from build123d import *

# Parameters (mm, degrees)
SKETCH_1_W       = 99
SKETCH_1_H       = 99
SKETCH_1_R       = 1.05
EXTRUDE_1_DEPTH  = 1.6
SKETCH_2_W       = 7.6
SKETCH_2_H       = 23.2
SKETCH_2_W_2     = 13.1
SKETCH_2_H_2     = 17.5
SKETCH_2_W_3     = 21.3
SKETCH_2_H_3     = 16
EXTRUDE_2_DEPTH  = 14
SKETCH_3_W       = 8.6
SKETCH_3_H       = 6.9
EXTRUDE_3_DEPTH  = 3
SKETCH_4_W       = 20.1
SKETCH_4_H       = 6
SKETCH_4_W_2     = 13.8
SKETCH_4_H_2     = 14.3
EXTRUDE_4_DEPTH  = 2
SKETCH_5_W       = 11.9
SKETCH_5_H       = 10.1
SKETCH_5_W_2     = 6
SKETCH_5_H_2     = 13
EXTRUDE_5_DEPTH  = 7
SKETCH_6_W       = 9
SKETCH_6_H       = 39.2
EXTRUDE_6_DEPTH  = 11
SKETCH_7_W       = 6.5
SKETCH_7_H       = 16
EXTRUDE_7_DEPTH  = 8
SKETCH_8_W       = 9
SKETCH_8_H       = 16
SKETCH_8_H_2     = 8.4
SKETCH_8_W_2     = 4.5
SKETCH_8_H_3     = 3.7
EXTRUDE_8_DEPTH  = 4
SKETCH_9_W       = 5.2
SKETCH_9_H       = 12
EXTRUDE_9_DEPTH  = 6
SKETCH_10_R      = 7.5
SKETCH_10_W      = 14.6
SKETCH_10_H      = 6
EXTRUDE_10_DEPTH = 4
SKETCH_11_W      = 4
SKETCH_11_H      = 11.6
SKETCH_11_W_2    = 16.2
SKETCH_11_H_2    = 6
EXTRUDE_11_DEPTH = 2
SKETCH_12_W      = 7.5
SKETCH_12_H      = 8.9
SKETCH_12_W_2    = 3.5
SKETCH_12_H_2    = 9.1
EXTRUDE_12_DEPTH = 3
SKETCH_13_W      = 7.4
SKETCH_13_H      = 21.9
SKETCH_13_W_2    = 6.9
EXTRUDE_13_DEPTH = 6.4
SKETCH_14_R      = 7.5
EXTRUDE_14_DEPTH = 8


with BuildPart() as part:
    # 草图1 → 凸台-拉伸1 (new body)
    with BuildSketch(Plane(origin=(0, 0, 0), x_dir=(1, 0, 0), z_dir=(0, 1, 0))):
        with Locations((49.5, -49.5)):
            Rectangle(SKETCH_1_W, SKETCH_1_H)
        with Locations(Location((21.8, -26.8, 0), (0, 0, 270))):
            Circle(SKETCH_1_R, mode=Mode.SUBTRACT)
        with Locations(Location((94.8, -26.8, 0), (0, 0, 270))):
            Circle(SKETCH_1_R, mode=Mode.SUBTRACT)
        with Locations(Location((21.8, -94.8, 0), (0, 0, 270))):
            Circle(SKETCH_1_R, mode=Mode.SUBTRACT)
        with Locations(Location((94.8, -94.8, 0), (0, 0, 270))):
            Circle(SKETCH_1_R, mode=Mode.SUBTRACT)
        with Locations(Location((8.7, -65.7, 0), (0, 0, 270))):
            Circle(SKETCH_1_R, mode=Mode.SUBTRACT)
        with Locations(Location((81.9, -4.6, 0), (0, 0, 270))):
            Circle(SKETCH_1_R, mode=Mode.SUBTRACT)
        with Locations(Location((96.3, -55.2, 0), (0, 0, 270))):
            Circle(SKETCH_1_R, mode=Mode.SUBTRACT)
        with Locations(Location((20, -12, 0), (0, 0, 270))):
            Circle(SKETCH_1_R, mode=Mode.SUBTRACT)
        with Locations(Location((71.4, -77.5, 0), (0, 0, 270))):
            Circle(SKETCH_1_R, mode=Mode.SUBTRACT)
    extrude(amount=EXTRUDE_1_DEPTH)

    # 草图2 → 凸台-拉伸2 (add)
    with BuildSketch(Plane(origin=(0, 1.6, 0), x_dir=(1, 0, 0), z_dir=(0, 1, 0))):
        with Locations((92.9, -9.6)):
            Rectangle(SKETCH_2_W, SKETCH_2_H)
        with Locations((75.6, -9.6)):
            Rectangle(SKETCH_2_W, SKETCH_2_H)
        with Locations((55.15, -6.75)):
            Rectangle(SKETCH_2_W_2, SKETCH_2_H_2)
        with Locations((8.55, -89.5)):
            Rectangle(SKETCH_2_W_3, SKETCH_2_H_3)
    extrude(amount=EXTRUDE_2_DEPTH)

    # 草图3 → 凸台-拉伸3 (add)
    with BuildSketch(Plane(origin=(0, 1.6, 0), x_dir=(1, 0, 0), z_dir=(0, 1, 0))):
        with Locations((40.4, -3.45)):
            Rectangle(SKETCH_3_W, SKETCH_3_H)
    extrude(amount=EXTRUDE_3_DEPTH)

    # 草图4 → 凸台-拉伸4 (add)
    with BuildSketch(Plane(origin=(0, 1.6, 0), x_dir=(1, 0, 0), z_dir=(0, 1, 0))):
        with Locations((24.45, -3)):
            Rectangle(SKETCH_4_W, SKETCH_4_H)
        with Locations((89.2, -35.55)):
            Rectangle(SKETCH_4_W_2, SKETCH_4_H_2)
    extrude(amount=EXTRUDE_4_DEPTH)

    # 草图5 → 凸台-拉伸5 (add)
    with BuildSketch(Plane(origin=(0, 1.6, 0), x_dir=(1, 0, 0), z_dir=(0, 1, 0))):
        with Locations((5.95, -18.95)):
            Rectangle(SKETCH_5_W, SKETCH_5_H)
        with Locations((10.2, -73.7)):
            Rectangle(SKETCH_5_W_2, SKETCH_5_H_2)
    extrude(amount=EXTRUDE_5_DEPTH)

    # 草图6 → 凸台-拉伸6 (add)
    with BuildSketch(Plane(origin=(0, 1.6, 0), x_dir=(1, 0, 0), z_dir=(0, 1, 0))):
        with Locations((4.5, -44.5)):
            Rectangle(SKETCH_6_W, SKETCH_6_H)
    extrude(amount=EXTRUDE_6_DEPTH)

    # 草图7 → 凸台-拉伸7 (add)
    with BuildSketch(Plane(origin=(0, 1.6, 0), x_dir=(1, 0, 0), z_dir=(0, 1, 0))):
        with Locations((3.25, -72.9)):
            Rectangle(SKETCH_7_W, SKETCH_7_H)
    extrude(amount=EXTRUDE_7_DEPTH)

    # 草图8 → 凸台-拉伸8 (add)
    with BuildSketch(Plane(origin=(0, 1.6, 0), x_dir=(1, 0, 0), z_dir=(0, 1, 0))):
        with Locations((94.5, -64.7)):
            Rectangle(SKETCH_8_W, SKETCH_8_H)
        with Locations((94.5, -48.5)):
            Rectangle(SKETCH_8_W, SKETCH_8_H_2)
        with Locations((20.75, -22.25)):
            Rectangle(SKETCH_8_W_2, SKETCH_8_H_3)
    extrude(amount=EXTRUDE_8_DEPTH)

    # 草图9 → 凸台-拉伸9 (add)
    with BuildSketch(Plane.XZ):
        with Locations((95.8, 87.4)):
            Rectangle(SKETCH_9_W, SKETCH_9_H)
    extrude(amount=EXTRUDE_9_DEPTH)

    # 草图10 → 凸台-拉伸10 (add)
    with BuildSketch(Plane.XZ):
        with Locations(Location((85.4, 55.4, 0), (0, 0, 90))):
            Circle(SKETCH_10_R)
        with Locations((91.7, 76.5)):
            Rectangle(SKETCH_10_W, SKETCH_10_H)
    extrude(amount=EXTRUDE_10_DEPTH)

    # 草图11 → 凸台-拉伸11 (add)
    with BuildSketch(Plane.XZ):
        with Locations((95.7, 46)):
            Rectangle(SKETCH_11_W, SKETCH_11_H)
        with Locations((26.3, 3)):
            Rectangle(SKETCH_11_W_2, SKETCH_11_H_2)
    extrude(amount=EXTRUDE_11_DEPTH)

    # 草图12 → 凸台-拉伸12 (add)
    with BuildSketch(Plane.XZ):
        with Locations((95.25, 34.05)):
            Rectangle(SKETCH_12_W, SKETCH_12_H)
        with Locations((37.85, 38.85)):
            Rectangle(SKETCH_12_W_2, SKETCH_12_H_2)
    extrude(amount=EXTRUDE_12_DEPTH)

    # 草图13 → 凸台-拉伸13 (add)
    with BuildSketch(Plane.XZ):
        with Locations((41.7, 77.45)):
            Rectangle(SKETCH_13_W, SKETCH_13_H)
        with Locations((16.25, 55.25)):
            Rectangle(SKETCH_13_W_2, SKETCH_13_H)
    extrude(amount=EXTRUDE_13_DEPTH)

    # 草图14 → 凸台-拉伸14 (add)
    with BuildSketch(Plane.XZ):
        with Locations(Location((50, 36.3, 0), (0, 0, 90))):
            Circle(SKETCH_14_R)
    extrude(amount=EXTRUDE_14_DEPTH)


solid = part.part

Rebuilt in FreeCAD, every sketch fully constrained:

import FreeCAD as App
import Part
import Sketcher
from FreeCAD import Vector
Q = App.Units.Quantity

doc = App.newDocument("Part")
body = doc.addObject("PartDesign::Body", "Body")

# Sketch on XZ plane
sketch1 = body.newObject("Sketcher::SketchObject", "Sketch")
sketch1.AttachmentSupport = (doc.getObject("XZ_Plane"), [""])
sketch1.MapMode = "FlatFace"
sketch1.addGeometry([
    Part.LineSegment(Vector(0, 0, 0), Vector(0, 99, 0)),  # 0
    Part.LineSegment(Vector(0, 99, 0), Vector(99, 99, 0)),  # 1
    Part.LineSegment(Vector(99, 99, 0), Vector(99, 0, 0)),  # 2
    Part.LineSegment(Vector(99, 0, 0), Vector(0, 0, 0)),  # 3
    Part.Circle(Vector(21.8, 94.8, 0), Vector(0, 0, 1), 1.1),  # 4
    Part.Circle(Vector(8.7, 65.7, 0), Vector(0, 0, 1), 1.1),  # 5
    Part.Circle(Vector(71.4, 77.5, 0), Vector(0, 0, 1), 1.1),  # 6
    Part.Circle(Vector(94.8, 94.8, 0), Vector(0, 0, 1), 1.1),  # 7
    Part.Circle(Vector(96.3, 55.2, 0), Vector(0, 0, 1), 1.1),  # 8
    Part.Circle(Vector(21.8, 26.8, 0), Vector(0, 0, 1), 1.1),  # 9
    Part.Circle(Vector(20, 12, 0), Vector(0, 0, 1), 1.1),  # 10
    Part.Circle(Vector(94.8, 26.8, 0), Vector(0, 0, 1), 1.1),  # 11
    Part.Circle(Vector(81.9, 4.6, 0), Vector(0, 0, 1), 1.1),  # 12
], False)
sketch1.addConstraint([
    Sketcher.Constraint("Coincident", 0, 2, 1, 1),
    Sketcher.Constraint("Coincident", 1, 2, 2, 1),
    Sketcher.Constraint("Coincident", 2, 2, 3, 1),
    Sketcher.Constraint("Coincident", 3, 2, 0, 1),
    Sketcher.Constraint("Vertical", 0),
    Sketcher.Constraint("Horizontal", 1),
    Sketcher.Constraint("Vertical", 2),
    Sketcher.Constraint("Horizontal", 3),
    Sketcher.Constraint("Coincident", 3, 2, -1, 1),
    Sketcher.Constraint("Equal", 4, 5),
    Sketcher.Constraint("Equal", 5, 6),
    Sketcher.Constraint("Equal", 6, 7),
    Sketcher.Constraint("Equal", 7, 8),
    Sketcher.Constraint("Equal", 8, 9),
    Sketcher.Constraint("Equal", 9, 10),
    Sketcher.Constraint("Equal", 10, 11),
    Sketcher.Constraint("Equal", 11, 12),
    Sketcher.Constraint("Horizontal", 4, 3, 7, 3),
    Sketcher.Constraint("Horizontal", 9, 3, 11, 3),
    Sketcher.Constraint("Vertical", 4, 3, 9, 3),
    Sketcher.Constraint("Vertical", 7, 3, 11, 3),
    Sketcher.Constraint("Equal", 3, 0),
    Sketcher.Constraint("Diameter", 4, Q("2.1 mm")),
    Sketcher.Constraint("DistanceX", 1, 1, 1, 2, Q("99 mm")),
    Sketcher.Constraint("DistanceX", -1, 1, 10, 3, Q("20 mm")),
    Sketcher.Constraint("DistanceY", -1, 1, 10, 3, Q("12 mm")),
    Sketcher.Constraint("DistanceX", 4, 3, 7, 3, Q("73 mm")),
    Sketcher.Constraint("DistanceY", 9, 3, 4, 3, Q("68 mm")),
    Sketcher.Constraint("DistanceX", -1, 1, 4, 3, Q("21.8 mm")),
    Sketcher.Constraint("DistanceY", -1, 1, 4, 3, Q("94.8 mm")),
    Sketcher.Constraint("DistanceX", -1, 1, 5, 3, Q("8.7 mm")),
    Sketcher.Constraint("DistanceY", -1, 1, 5, 3, Q("65.7 mm")),
    Sketcher.Constraint("DistanceX", -1, 1, 6, 3, Q("71.4 mm")),
    Sketcher.Constraint("DistanceY", -1, 1, 6, 3, Q("77.5 mm")),
    Sketcher.Constraint("DistanceX", -1, 1, 8, 3, Q("96.3 mm")),
    Sketcher.Constraint("DistanceY", -1, 1, 8, 3, Q("55.2 mm")),
    Sketcher.Constraint("DistanceX", -1, 1, 12, 3, Q("81.9 mm")),
    Sketcher.Constraint("DistanceY", -1, 1, 12, 3, Q("4.6 mm")),
])
pad1 = body.newObject("PartDesign::Pad", "Pad")
pad1.Profile = sketch1
pad1.Length = 1.6
pad1.Reversed = True

# Sketch on XZ plane
sketch2 = body.newObject("Sketcher::SketchObject", "Sketch001")
sketch2.AttachmentSupport = (doc.getObject("XZ_Plane"), [""])
sketch2.MapMode = "FlatFace"
sketch2.AttachmentOffset = App.Placement(Vector(0, 0, -1.6), App.Rotation())
sketch2.addGeometry([
    Part.LineSegment(Vector(89, -2, 0), Vector(89, 21, 0)),  # 0
    Part.LineSegment(Vector(89, 21, 0), Vector(97, 21, 0)),  # 1
    Part.LineSegment(Vector(97, 21, 0), Vector(97, -2, 0)),  # 2
    Part.LineSegment(Vector(97, -2, 0), Vector(89, -2, 0)),  # 3
    Part.LineSegment(Vector(72, -2, 0), Vector(72, 21, 0)),  # 4
    Part.LineSegment(Vector(72, 21, 0), Vector(79, 21, 0)),  # 5
    Part.LineSegment(Vector(79, 21, 0), Vector(79, -2, 0)),  # 6
    Part.LineSegment(Vector(79, -2, 0), Vector(72, -2, 0)),  # 7
    Part.LineSegment(Vector(49, -2, 0), Vector(49, 16, 0)),  # 8
    Part.LineSegment(Vector(49, 16, 0), Vector(62, 16, 0)),  # 9
    Part.LineSegment(Vector(62, 16, 0), Vector(62, -2, 0)),  # 10
    Part.LineSegment(Vector(62, -2, 0), Vector(49, -2, 0)),  # 11
    Part.LineSegment(Vector(-2, 82, 0), Vector(-2, 98, 0)),  # 12
    Part.LineSegment(Vector(-2, 98, 0), Vector(19, 98, 0)),  # 13
    Part.LineSegment(Vector(19, 98, 0), Vector(19, 82, 0)),  # 14
    Part.LineSegment(Vector(19, 82, 0), Vector(-2, 82, 0)),  # 15
], False)
sketch2.addConstraint([
    Sketcher.Constraint("Coincident", 0, 2, 1, 1),
    Sketcher.Constraint("Coincident", 1, 2, 2, 1),
    Sketcher.Constraint("Coincident", 2, 2, 3, 1),
    Sketcher.Constraint("Coincident", 3, 2, 0, 1),
    Sketcher.Constraint("Coincident", 4, 2, 5, 1),
    Sketcher.Constraint("Coincident", 5, 2, 6, 1),
    Sketcher.Constraint("Coincident", 6, 2, 7, 1),
    Sketcher.Constraint("Coincident", 7, 2, 4, 1),
    Sketcher.Constraint("Coincident", 8, 2, 9, 1),
    Sketcher.Constraint("Coincident", 9, 2, 10, 1),
    Sketcher.Constraint("Coincident", 10, 2, 11, 1),
    Sketcher.Constraint("Coincident", 11, 2, 8, 1),
    Sketcher.Constraint("Coincident", 12, 2, 13, 1),
    Sketcher.Constraint("Coincident", 13, 2, 14, 1),
    Sketcher.Constraint("Coincident", 14, 2, 15, 1),
    Sketcher.Constraint("Coincident", 15, 2, 12, 1),
    Sketcher.Constraint("Vertical", 0),
    Sketcher.Constraint("Horizontal", 1),
    Sketcher.Constraint("Vertical", 2),
    Sketcher.Constraint("Horizontal", 3),
    Sketcher.Constraint("Vertical", 4),
    Sketcher.Constraint("Horizontal", 5),
    Sketcher.Constraint("Vertical", 6),
    Sketcher.Constraint("Horizontal", 7),
    Sketcher.Constraint("Vertical", 8),
    Sketcher.Constraint("Horizontal", 9),
    Sketcher.Constraint("Vertical", 10),
    Sketcher.Constraint("Horizontal", 11),
    Sketcher.Constraint("Vertical", 12),
    Sketcher.Constraint("Horizontal", 13),
    Sketcher.Constraint("Vertical", 14),
    Sketcher.Constraint("Horizontal", 15),
    Sketcher.Constraint("Horizontal", 1, 2, 4, 2),
    Sketcher.Constraint("Horizontal", 3, 2, 6, 2),
    Sketcher.Constraint("Horizontal", 7, 2, 10, 2),
    Sketcher.Constraint("Equal", 3, 5),
    Sketcher.Constraint("DistanceY", 12, 1, 12, 2, Q("16 mm")),
    Sketcher.Constraint("DistanceX", 1, 1, 1, 2, Q("7.6 mm")),
    Sketcher.Constraint("DistanceX", 9, 1, 9, 2, Q("13.1 mm")),
    Sketcher.Constraint("DistanceX", 13, 1, 13, 2, Q("21.3 mm")),
    Sketcher.Constraint("DistanceY", 0, 1, 0, 2, Q("23.2 mm")),
    Sketcher.Constraint("DistanceY", 8, 1, 8, 2, Q("17.5 mm")),
    Sketcher.Constraint("DistanceY", 2, 2, -1, 1, Q("2 mm")),
    Sketcher.Constraint("DistanceY", 8, 2, 12, 2, Q("82 mm")),
    Sketcher.Constraint("DistanceX", -1, 1, 0, 2, Q("89.1 mm")),
    Sketcher.Constraint("DistanceX", -1, 1, 4, 2, Q("71.8 mm")),
    Sketcher.Constraint("DistanceX", -1, 1, 8, 2, Q("48.6 mm")),
    Sketcher.Constraint("DistanceX", 12, 2, -1, 1, Q("2.1 mm")),
])
pad2 = body.newObject("PartDesign::Pad", "Pad001")
pad2.Profile = sketch2
pad2.Length = 14
pad2.Reversed = True

# Sketch on XZ plane
sketch3 = body.newObject("Sketcher::SketchObject", "Sketch002")
sketch3.AttachmentSupport = (doc.getObject("XZ_Plane"), [""])
sketch3.MapMode = "FlatFace"
sketch3.AttachmentOffset = App.Placement(Vector(0, 0, -1.6), App.Rotation())
sketch3.addGeometry([
    Part.LineSegment(Vector(36, 0, 0), Vector(36, 7, 0)),
    Part.LineSegment(Vector(36, 7, 0), Vector(45, 7, 0)),
    Part.LineSegment(Vector(45, 7, 0), Vector(45, 0, 0)),
    Part.LineSegment(Vector(45, 0, 0), Vector(36, 0, 0)),
], False)
sketch3.addConstraint([
    Sketcher.Constraint("Coincident", 0, 2, 1, 1),
    Sketcher.Constraint("Coincident", 1, 2, 2, 1),
    Sketcher.Constraint("Coincident", 2, 2, 3, 1),
    Sketcher.Constraint("Coincident", 3, 2, 0, 1),
    Sketcher.Constraint("Vertical", 0),
    Sketcher.Constraint("Horizontal", 1),
    Sketcher.Constraint("Vertical", 2),
    Sketcher.Constraint("Horizontal", 3),
    Sketcher.Constraint("PointOnObject", 2, 2, -1),
    Sketcher.Constraint("DistanceX", 1, 1, 1, 2, Q("8.6 mm")),
    Sketcher.Constraint("DistanceY", 0, 1, 0, 2, Q("6.9 mm")),
    Sketcher.Constraint("DistanceX", -1, 1, 0, 2, Q("36.1 mm")),
])
pad3 = body.newObject("PartDesign::Pad", "Pad002")
pad3.Profile = sketch3
pad3.Length = 3
pad3.Reversed = True

# Sketch on XZ plane
sketch4 = body.newObject("Sketcher::SketchObject", "Sketch003")
sketch4.AttachmentSupport = (doc.getObject("XZ_Plane"), [""])
sketch4.MapMode = "FlatFace"
sketch4.AttachmentOffset = App.Placement(Vector(0, 0, -1.6), App.Rotation())
sketch4.addGeometry([
    Part.LineSegment(Vector(14, 0, 0), Vector(14, 6, 0)),  # 0
    Part.LineSegment(Vector(14, 6, 0), Vector(34, 6, 0)),  # 1
    Part.LineSegment(Vector(34, 6, 0), Vector(34, 0, 0)),  # 2
    Part.LineSegment(Vector(34, 0, 0), Vector(14, 0, 0)),  # 3
    Part.LineSegment(Vector(82, 28, 0), Vector(82, 43, 0)),  # 4
    Part.LineSegment(Vector(82, 43, 0), Vector(96, 43, 0)),  # 5
    Part.LineSegment(Vector(96, 43, 0), Vector(96, 28, 0)),  # 6
    Part.LineSegment(Vector(96, 28, 0), Vector(82, 28, 0)),  # 7
], False)
sketch4.addConstraint([
    Sketcher.Constraint("Coincident", 0, 2, 1, 1),
    Sketcher.Constraint("Coincident", 1, 2, 2, 1),
    Sketcher.Constraint("Coincident", 2, 2, 3, 1),
    Sketcher.Constraint("Coincident", 3, 2, 0, 1),
    Sketcher.Constraint("Coincident", 4, 2, 5, 1),
    Sketcher.Constraint("Coincident", 5, 2, 6, 1),
    Sketcher.Constraint("Coincident", 6, 2, 7, 1),
    Sketcher.Constraint("Coincident", 7, 2, 4, 1),
    Sketcher.Constraint("Vertical", 0),
    Sketcher.Constraint("Horizontal", 1),
    Sketcher.Constraint("Vertical", 2),
    Sketcher.Constraint("Horizontal", 3),
    Sketcher.Constraint("Vertical", 4),
    Sketcher.Constraint("Horizontal", 5),
    Sketcher.Constraint("Vertical", 6),
    Sketcher.Constraint("Horizontal", 7),
    Sketcher.Constraint("PointOnObject", 2, 2, -1),
    Sketcher.Constraint("DistanceY", 0, 1, 0, 2, Q("6 mm")),
    Sketcher.Constraint("DistanceX", 1, 1, 1, 2, Q("20.1 mm")),
    Sketcher.Constraint("DistanceX", 5, 1, 5, 2, Q("13.8 mm")),
    Sketcher.Constraint("DistanceY", 4, 1, 4, 2, Q("14.3 mm")),
    Sketcher.Constraint("DistanceX", -1, 1, 0, 2, Q("14.4 mm")),
    Sketcher.Constraint("DistanceX", -1, 1, 4, 2, Q("82.3 mm")),
    Sketcher.Constraint("DistanceY", -1, 1, 4, 2, Q("42.7 mm")),
])
pad4 = body.newObject("PartDesign::Pad", "Pad003")
pad4.Profile = sketch4
pad4.Length = 2
pad4.Reversed = True

# Sketch on XZ plane
sketch5 = body.newObject("Sketcher::SketchObject", "Sketch004")
sketch5.AttachmentSupport = (doc.getObject("XZ_Plane"), [""])
sketch5.MapMode = "FlatFace"
sketch5.AttachmentOffset = App.Placement(Vector(0, 0, -1.6), App.Rotation())
sketch5.addGeometry([
    Part.LineSegment(Vector(0, 14, 0), Vector(0, 24, 0)),  # 0
    Part.LineSegment(Vector(0, 24, 0), Vector(12, 24, 0)),  # 1
    Part.LineSegment(Vector(12, 24, 0), Vector(12, 14, 0)),  # 2
    Part.LineSegment(Vector(12, 14, 0), Vector(0, 14, 0)),  # 3
    Part.LineSegment(Vector(7, 67, 0), Vector(7, 80, 0)),  # 4
    Part.LineSegment(Vector(7, 80, 0), Vector(13, 80, 0)),  # 5
    Part.LineSegment(Vector(13, 80, 0), Vector(13, 67, 0)),  # 6
    Part.LineSegment(Vector(13, 67, 0), Vector(7, 67, 0)),  # 7
], False)
sketch5.addConstraint([
    Sketcher.Constraint("Coincident", 0, 2, 1, 1),
    Sketcher.Constraint("Coincident", 1, 2, 2, 1),
    Sketcher.Constraint("Coincident", 2, 2, 3, 1),
    Sketcher.Constraint("Coincident", 3, 2, 0, 1),
    Sketcher.Constraint("Coincident", 4, 2, 5, 1),
    Sketcher.Constraint("Coincident", 5, 2, 6, 1),
    Sketcher.Constraint("Coincident", 6, 2, 7, 1),
    Sketcher.Constraint("Coincident", 7, 2, 4, 1),
    Sketcher.Constraint("Vertical", 0),
    Sketcher.Constraint("Horizontal", 1),
    Sketcher.Constraint("Vertical", 2),
    Sketcher.Constraint("Horizontal", 3),
    Sketcher.Constraint("Vertical", 4),
    Sketcher.Constraint("Horizontal", 5),
    Sketcher.Constraint("Vertical", 6),
    Sketcher.Constraint("Horizontal", 7),
    Sketcher.Constraint("PointOnObject", 0, 2, -2),
    Sketcher.Constraint("DistanceX", 5, 1, 5, 2, Q("6 mm")),
    Sketcher.Constraint("DistanceY", 4, 1, 4, 2, Q("13 mm")),
    Sketcher.Constraint("DistanceX", 1, 1, 1, 2, Q("11.9 mm")),
    Sketcher.Constraint("DistanceY", 0, 1, 0, 2, Q("10.1 mm")),
    Sketcher.Constraint("DistanceY", -1, 1, 0, 2, Q("24 mm")),
    Sketcher.Constraint("DistanceX", -1, 1, 4, 2, Q("7.2 mm")),
    Sketcher.Constraint("DistanceY", -1, 1, 4, 2, Q("80.2 mm")),
])
pad5 = body.newObject("PartDesign::Pad", "Pad004")
pad5.Profile = sketch5
pad5.Length = 7
pad5.Reversed = True

# Sketch on XZ plane
sketch6 = body.newObject("Sketcher::SketchObject", "Sketch005")
sketch6.AttachmentSupport = (doc.getObject("XZ_Plane"), [""])
sketch6.MapMode = "FlatFace"
sketch6.AttachmentOffset = App.Placement(Vector(0, 0, -1.6), App.Rotation())
sketch6.addGeometry([
    Part.LineSegment(Vector(0, 25, 0), Vector(0, 64, 0)),
    Part.LineSegment(Vector(0, 64, 0), Vector(9, 64, 0)),
    Part.LineSegment(Vector(9, 64, 0), Vector(9, 25, 0)),
    Part.LineSegment(Vector(9, 25, 0), Vector(0, 25, 0)),
], False)
sketch6.addConstraint([
    Sketcher.Constraint("Coincident", 0, 2, 1, 1),
    Sketcher.Constraint("Coincident", 1, 2, 2, 1),
    Sketcher.Constraint("Coincident", 2, 2, 3, 1),
    Sketcher.Constraint("Coincident", 3, 2, 0, 1),
    Sketcher.Constraint("Vertical", 0),
    Sketcher.Constraint("Horizontal", 1),
    Sketcher.Constraint("Vertical", 2),
    Sketcher.Constraint("Horizontal", 3),
    Sketcher.Constraint("PointOnObject", 0, 2, -2),
    Sketcher.Constraint("DistanceX", 1, 1, 1, 2, Q("9 mm")),
    Sketcher.Constraint("DistanceY", 0, 1, 0, 2, Q("39.2 mm")),
    Sketcher.Constraint("DistanceY", -1, 1, 0, 2, Q("64.1 mm")),
])
pad6 = body.newObject("PartDesign::Pad", "Pad005")
pad6.Profile = sketch6
pad6.Length = 11
pad6.Reversed = True

# Sketch on XZ plane
sketch7 = body.newObject("Sketcher::SketchObject", "Sketch006")
sketch7.AttachmentSupport = (doc.getObject("XZ_Plane"), [""])
sketch7.MapMode = "FlatFace"
sketch7.AttachmentOffset = App.Placement(Vector(0, 0, -1.6), App.Rotation())
sketch7.addGeometry([
    Part.LineSegment(Vector(0, 65, 0), Vector(0, 81, 0)),
    Part.LineSegment(Vector(0, 81, 0), Vector(6, 81, 0)),
    Part.LineSegment(Vector(6, 81, 0), Vector(6, 65, 0)),
    Part.LineSegment(Vector(6, 65, 0), Vector(0, 65, 0)),
], False)
sketch7.addConstraint([
    Sketcher.Constraint("Coincident", 0, 2, 1, 1),
    Sketcher.Constraint("Coincident", 1, 2, 2, 1),
    Sketcher.Constraint("Coincident", 2, 2, 3, 1),
    Sketcher.Constraint("Coincident", 3, 2, 0, 1),
    Sketcher.Constraint("Vertical", 0),
    Sketcher.Constraint("Horizontal", 1),
    Sketcher.Constraint("Vertical", 2),
    Sketcher.Constraint("Horizontal", 3),
    Sketcher.Constraint("PointOnObject", 0, 2, -2),
    Sketcher.Constraint("DistanceY", 0, 1, 0, 2, Q("16 mm")),
    Sketcher.Constraint("DistanceX", 1, 1, 1, 2, Q("6.5 mm")),
    Sketcher.Constraint("DistanceY", -1, 1, 0, 2, Q("80.9 mm")),
])
pad7 = body.newObject("PartDesign::Pad", "Pad006")
pad7.Profile = sketch7
pad7.Length = 8
pad7.Reversed = True

# Sketch on XZ plane
sketch8 = body.newObject("Sketcher::SketchObject", "Sketch007")
sketch8.AttachmentSupport = (doc.getObject("XZ_Plane"), [""])
sketch8.MapMode = "FlatFace"
sketch8.AttachmentOffset = App.Placement(Vector(0, 0, -1.6), App.Rotation())
sketch8.addGeometry([
    Part.LineSegment(Vector(90, 56.7, 0), Vector(90, 72.7, 0)),  # 0
    Part.LineSegment(Vector(90, 72.7, 0), Vector(99, 72.7, 0)),  # 1
    Part.LineSegment(Vector(99, 72.7, 0), Vector(99, 56.7, 0)),  # 2
    Part.LineSegment(Vector(99, 56.7, 0), Vector(90, 56.7, 0)),  # 3
    Part.LineSegment(Vector(90, 44.3, 0), Vector(90, 52.7, 0)),  # 4
    Part.LineSegment(Vector(90, 52.7, 0), Vector(99, 52.7, 0)),  # 5
    Part.LineSegment(Vector(99, 52.7, 0), Vector(99, 44.3, 0)),  # 6
    Part.LineSegment(Vector(99, 44.3, 0), Vector(90, 44.3, 0)),  # 7
    Part.LineSegment(Vector(18.5, 20.4, 0), Vector(18.5, 24.1, 0)),  # 8
    Part.LineSegment(Vector(18.5, 24.1, 0), Vector(23, 24.1, 0)),  # 9
    Part.LineSegment(Vector(23, 24.1, 0), Vector(23, 20.4, 0)),  # 10
    Part.LineSegment(Vector(23, 20.4, 0), Vector(18.5, 20.4, 0)),  # 11
], False)
sketch8.addConstraint([
    Sketcher.Constraint("Coincident", 0, 2, 1, 1),
    Sketcher.Constraint("Coincident", 1, 2, 2, 1),
    Sketcher.Constraint("Coincident", 2, 2, 3, 1),
    Sketcher.Constraint("Coincident", 3, 2, 0, 1),
    Sketcher.Constraint("Coincident", 4, 2, 5, 1),
    Sketcher.Constraint("Coincident", 5, 2, 6, 1),
    Sketcher.Constraint("Coincident", 6, 2, 7, 1),
    Sketcher.Constraint("Coincident", 7, 2, 4, 1),
    Sketcher.Constraint("Coincident", 8, 2, 9, 1),
    Sketcher.Constraint("Coincident", 9, 2, 10, 1),
    Sketcher.Constraint("Coincident", 10, 2, 11, 1),
    Sketcher.Constraint("Coincident", 11, 2, 8, 1),
    Sketcher.Constraint("Vertical", 0),
    Sketcher.Constraint("Horizontal", 1),
    Sketcher.Constraint("Vertical", 2),
    Sketcher.Constraint("Horizontal", 3),
    Sketcher.Constraint("Vertical", 4),
    Sketcher.Constraint("Horizontal", 5),
    Sketcher.Constraint("Vertical", 6),
    Sketcher.Constraint("Horizontal", 7),
    Sketcher.Constraint("Vertical", 8),
    Sketcher.Constraint("Horizontal", 9),
    Sketcher.Constraint("Vertical", 10),
    Sketcher.Constraint("Horizontal", 11),
    Sketcher.Constraint("Vertical", 3, 2, 4, 2),
    Sketcher.Constraint("Vertical", 2, 2, 5, 2),
    Sketcher.Constraint("DistanceX", 1, 1, 1, 2, Q("9 mm")),
    Sketcher.Constraint("DistanceY", 0, 1, 0, 2, Q("16 mm")),
    Sketcher.Constraint("DistanceX", 9, 1, 9, 2, Q("4.5 mm")),
    Sketcher.Constraint("DistanceY", 4, 1, 4, 2, Q("8.4 mm")),
    Sketcher.Constraint("DistanceY", 8, 1, 8, 2, Q("3.7 mm")),
    Sketcher.Constraint("DistanceX", -1, 1, 0, 2, Q("90 mm")),
    Sketcher.Constraint("DistanceX", -1, 1, 9, 2, Q("23 mm")),
    Sketcher.Constraint("DistanceY", 4, 2, 3, 2, Q("4 mm")),
    Sketcher.Constraint("DistanceY", -1, 1, 0, 2, Q("72.7 mm")),
    Sketcher.Constraint("DistanceY", -1, 1, 8, 2, Q("24.1 mm")),
])
pad8 = body.newObject("PartDesign::Pad", "Pad007")
pad8.Profile = sketch8
pad8.Length = 4
pad8.Reversed = True

# Sketch on XZ plane
sketch9 = body.newObject("Sketcher::SketchObject", "Sketch008")
sketch9.AttachmentSupport = (doc.getObject("XZ_Plane"), [""])
sketch9.MapMode = "FlatFace"
sketch9.addGeometry([
    Part.LineSegment(Vector(93, 93, 0), Vector(93, 81, 0)),
    Part.LineSegment(Vector(93, 81, 0), Vector(98, 81, 0)),
    Part.LineSegment(Vector(98, 81, 0), Vector(98, 93, 0)),
    Part.LineSegment(Vector(98, 93, 0), Vector(93, 93, 0)),
], False)
sketch9.addConstraint([
    Sketcher.Constraint("Coincident", 0, 2, 1, 1),
    Sketcher.Constraint("Coincident", 1, 2, 2, 1),
    Sketcher.Constraint("Coincident", 2, 2, 3, 1),
    Sketcher.Constraint("Coincident", 3, 2, 0, 1),
    Sketcher.Constraint("Vertical", 0),
    Sketcher.Constraint("Horizontal", 1),
    Sketcher.Constraint("Vertical", 2),
    Sketcher.Constraint("Horizontal", 3),
    Sketcher.Constraint("DistanceY", 0, 2, 0, 1, Q("12 mm")),
    Sketcher.Constraint("DistanceX", 1, 1, 1, 2, Q("5.2 mm")),
    Sketcher.Constraint("DistanceX", -1, 1, 0, 2, Q("93.2 mm")),
    Sketcher.Constraint("DistanceY", -1, 1, 0, 2, Q("81.4 mm")),
])
pad9 = body.newObject("PartDesign::Pad", "Pad008")
pad9.Profile = sketch9
pad9.Length = 6

# Sketch on XZ plane
sketch10 = body.newObject("Sketcher::SketchObject", "Sketch009")
sketch10.AttachmentSupport = (doc.getObject("XZ_Plane"), [""])
sketch10.MapMode = "FlatFace"
sketch10.addGeometry([
    Part.Circle(Vector(85, 55, 0), Vector(0, 0, 1), 8),  # 0
    Part.LineSegment(Vector(84, 80, 0), Vector(84, 74, 0)),  # 1
    Part.LineSegment(Vector(84, 74, 0), Vector(99, 74, 0)),  # 2
    Part.LineSegment(Vector(99, 74, 0), Vector(99, 80, 0)),  # 3
    Part.LineSegment(Vector(99, 80, 0), Vector(84, 80, 0)),  # 4
], False)
sketch10.addConstraint([
    Sketcher.Constraint("Coincident", 1, 2, 2, 1),
    Sketcher.Constraint("Coincident", 2, 2, 3, 1),
    Sketcher.Constraint("Coincident", 3, 2, 4, 1),
    Sketcher.Constraint("Coincident", 4, 2, 1, 1),
    Sketcher.Constraint("Vertical", 1),
    Sketcher.Constraint("Horizontal", 2),
    Sketcher.Constraint("Vertical", 3),
    Sketcher.Constraint("Horizontal", 4),
    Sketcher.Constraint("Diameter", 0, Q("15 mm")),
    Sketcher.Constraint("DistanceY", 1, 2, 1, 1, Q("6 mm")),
    Sketcher.Constraint("DistanceX", 2, 1, 2, 2, Q("14.6 mm")),
    Sketcher.Constraint("DistanceX", -1, 1, 2, 2, Q("99 mm")),
    Sketcher.Constraint("DistanceX", 1, 2, 0, 3, Q("1 mm")),
    Sketcher.Constraint("DistanceY", -1, 1, 0, 3, Q("55.4 mm")),
    Sketcher.Constraint("DistanceY", -1, 1, 1, 2, Q("73.5 mm")),
])
pad10 = body.newObject("PartDesign::Pad", "Pad009")
pad10.Profile = sketch10
pad10.Length = 4

# Sketch on XZ plane
sketch11 = body.newObject("Sketcher::SketchObject", "Sketch010")
sketch11.AttachmentSupport = (doc.getObject("XZ_Plane"), [""])
sketch11.MapMode = "FlatFace"
sketch11.addGeometry([
    Part.LineSegment(Vector(93.7, 51.8, 0), Vector(93.7, 40.2, 0)),  # 0
    Part.LineSegment(Vector(93.7, 40.2, 0), Vector(97.7, 40.2, 0)),  # 1
    Part.LineSegment(Vector(97.7, 40.2, 0), Vector(97.7, 51.8, 0)),  # 2
    Part.LineSegment(Vector(97.7, 51.8, 0), Vector(93.7, 51.8, 0)),  # 3
    Part.LineSegment(Vector(18.2, 6, 0), Vector(18.2, 0, 0)),  # 4
    Part.LineSegment(Vector(18.2, 0, 0), Vector(34.4, 0, 0)),  # 5
    Part.LineSegment(Vector(34.4, 0, 0), Vector(34.4, 6, 0)),  # 6
    Part.LineSegment(Vector(34.4, 6, 0), Vector(18.2, 6, 0)),  # 7
], False)
sketch11.addConstraint([
    Sketcher.Constraint("Coincident", 0, 2, 1, 1),
    Sketcher.Constraint("Coincident", 1, 2, 2, 1),
    Sketcher.Constraint("Coincident", 2, 2, 3, 1),
    Sketcher.Constraint("Coincident", 3, 2, 0, 1),
    Sketcher.Constraint("Coincident", 4, 2, 5, 1),
    Sketcher.Constraint("Coincident", 5, 2, 6, 1),
    Sketcher.Constraint("Coincident", 6, 2, 7, 1),
    Sketcher.Constraint("Coincident", 7, 2, 4, 1),
    Sketcher.Constraint("Vertical", 0),
    Sketcher.Constraint("Horizontal", 1),
    Sketcher.Constraint("Vertical", 2),
    Sketcher.Constraint("Horizontal", 3),
    Sketcher.Constraint("Vertical", 4),
    Sketcher.Constraint("Horizontal", 5),
    Sketcher.Constraint("Vertical", 6),
    Sketcher.Constraint("Horizontal", 7),
    Sketcher.Constraint("PointOnObject", 4, 2, -1),
    Sketcher.Constraint("DistanceX", 1, 1, 1, 2, Q("4 mm")),
    Sketcher.Constraint("DistanceY", 4, 2, 4, 1, Q("6 mm")),
    Sketcher.Constraint("DistanceX", 5, 1, 5, 2, Q("16.2 mm")),
    Sketcher.Constraint("DistanceY", 0, 2, 0, 1, Q("11.6 mm")),
    Sketcher.Constraint("DistanceX", -1, 1, 0, 2, Q("93.7 mm")),
    Sketcher.Constraint("DistanceY", -1, 1, 0, 2, Q("40.2 mm")),
    Sketcher.Constraint("DistanceX", -1, 1, 4, 2, Q("18.2 mm")),
])
pad11 = body.newObject("PartDesign::Pad", "Pad010")
pad11.Profile = sketch11
pad11.Length = 2

# Sketch on XZ plane
sketch12 = body.newObject("Sketcher::SketchObject", "Sketch011")
sketch12.AttachmentSupport = (doc.getObject("XZ_Plane"), [""])
sketch12.MapMode = "FlatFace"
sketch12.addGeometry([
    Part.LineSegment(Vector(91.5, 38.5, 0), Vector(91.5, 29.6, 0)),  # 0
    Part.LineSegment(Vector(91.5, 29.6, 0), Vector(99, 29.6, 0)),  # 1
    Part.LineSegment(Vector(99, 29.6, 0), Vector(99, 38.5, 0)),  # 2
    Part.LineSegment(Vector(99, 38.5, 0), Vector(91.5, 38.5, 0)),  # 3
    Part.LineSegment(Vector(36.1, 43.4, 0), Vector(36.1, 34.3, 0)),  # 4
    Part.LineSegment(Vector(36.1, 34.3, 0), Vector(39.6, 34.3, 0)),  # 5
    Part.LineSegment(Vector(39.6, 34.3, 0), Vector(39.6, 43.4, 0)),  # 6
    Part.LineSegment(Vector(39.6, 43.4, 0), Vector(36.1, 43.4, 0)),  # 7
], False)
sketch12.addConstraint([
    Sketcher.Constraint("Coincident", 0, 2, 1, 1),
    Sketcher.Constraint("Coincident", 1, 2, 2, 1),
    Sketcher.Constraint("Coincident", 2, 2, 3, 1),
    Sketcher.Constraint("Coincident", 3, 2, 0, 1),
    Sketcher.Constraint("Coincident", 4, 2, 5, 1),
    Sketcher.Constraint("Coincident", 5, 2, 6, 1),
    Sketcher.Constraint("Coincident", 6, 2, 7, 1),
    Sketcher.Constraint("Coincident", 7, 2, 4, 1),
    Sketcher.Constraint("Vertical", 0),
    Sketcher.Constraint("Horizontal", 1),
    Sketcher.Constraint("Vertical", 2),
    Sketcher.Constraint("Horizontal", 3),
    Sketcher.Constraint("Vertical", 4),
    Sketcher.Constraint("Horizontal", 5),
    Sketcher.Constraint("Vertical", 6),
    Sketcher.Constraint("Horizontal", 7),
    Sketcher.Constraint("DistanceX", 1, 1, 1, 2, Q("7.5 mm")),
    Sketcher.Constraint("DistanceX", 5, 1, 5, 2, Q("3.5 mm")),
    Sketcher.Constraint("DistanceY", 0, 2, 0, 1, Q("8.9 mm")),
    Sketcher.Constraint("DistanceY", 4, 2, 4, 1, Q("9.1 mm")),
    Sketcher.Constraint("DistanceX", -1, 1, 1, 2, Q("99 mm")),
    Sketcher.Constraint("DistanceY", -1, 1, 0, 2, Q("29.6 mm")),
    Sketcher.Constraint("DistanceX", -1, 1, 4, 2, Q("36.1 mm")),
    Sketcher.Constraint("DistanceY", -1, 1, 4, 2, Q("34.3 mm")),
])
pad12 = body.newObject("PartDesign::Pad", "Pad011")
pad12.Profile = sketch12
pad12.Length = 3

# Sketch on XZ plane
sketch13 = body.newObject("Sketcher::SketchObject", "Sketch012")
sketch13.AttachmentSupport = (doc.getObject("XZ_Plane"), [""])
sketch13.MapMode = "FlatFace"
sketch13.addGeometry([
    Part.LineSegment(Vector(38, 88, 0), Vector(38, 66, 0)),  # 0
    Part.LineSegment(Vector(38, 66, 0), Vector(45, 66, 0)),  # 1
    Part.LineSegment(Vector(45, 66, 0), Vector(45, 88, 0)),  # 2
    Part.LineSegment(Vector(45, 88, 0), Vector(38, 88, 0)),  # 3
    Part.LineSegment(Vector(13, 66, 0), Vector(13, 44, 0)),  # 4
    Part.LineSegment(Vector(13, 44, 0), Vector(20, 44, 0)),  # 5
    Part.LineSegment(Vector(20, 44, 0), Vector(20, 66, 0)),  # 6
    Part.LineSegment(Vector(20, 66, 0), Vector(13, 66, 0)),  # 7
], False)
sketch13.addConstraint([
    Sketcher.Constraint("Coincident", 0, 2, 1, 1),
    Sketcher.Constraint("Coincident", 1, 2, 2, 1),
    Sketcher.Constraint("Coincident", 2, 2, 3, 1),
    Sketcher.Constraint("Coincident", 3, 2, 0, 1),
    Sketcher.Constraint("Coincident", 4, 2, 5, 1),
    Sketcher.Constraint("Coincident", 5, 2, 6, 1),
    Sketcher.Constraint("Coincident", 6, 2, 7, 1),
    Sketcher.Constraint("Coincident", 7, 2, 4, 1),
    Sketcher.Constraint("Vertical", 0),
    Sketcher.Constraint("Horizontal", 1),
    Sketcher.Constraint("Vertical", 2),
    Sketcher.Constraint("Horizontal", 3),
    Sketcher.Constraint("Vertical", 4),
    Sketcher.Constraint("Horizontal", 5),
    Sketcher.Constraint("Vertical", 6),
    Sketcher.Constraint("Horizontal", 7),
    Sketcher.Constraint("Equal", 2, 4),
    Sketcher.Constraint("DistanceX", 1, 1, 1, 2, Q("7.4 mm")),
    Sketcher.Constraint("DistanceX", 5, 1, 5, 2, Q("6.9 mm")),
    Sketcher.Constraint("DistanceY", 0, 2, 0, 1, Q("21.9 mm")),
    Sketcher.Constraint("DistanceX", -1, 1, 0, 2, Q("38 mm")),
    Sketcher.Constraint("DistanceY", -1, 1, 0, 2, Q("66.5 mm")),
    Sketcher.Constraint("DistanceX", -1, 1, 4, 2, Q("12.8 mm")),
    Sketcher.Constraint("DistanceY", -1, 1, 4, 2, Q("44.3 mm")),
])
pad13 = body.newObject("PartDesign::Pad", "Pad012")
pad13.Profile = sketch13
pad13.Length = 6.4

# Sketch on XZ plane
sketch14 = body.newObject("Sketcher::SketchObject", "Sketch013")
sketch14.AttachmentSupport = (doc.getObject("XZ_Plane"), [""])
sketch14.MapMode = "FlatFace"
sketch14.addGeometry(Part.Circle(Vector(50, 36, 0), Vector(0, 0, 1), 8), False)
sketch14.addConstraint([
    Sketcher.Constraint("Diameter", 0, Q("15 mm")),
    Sketcher.Constraint("DistanceX", -1, 1, 0, 3, Q("50 mm")),
    Sketcher.Constraint("DistanceY", -1, 1, 0, 3, Q("36.3 mm")),
])
pad14 = body.newObject("PartDesign::Pad", "Pad013")
pad14.Profile = sketch14
pad14.Length = 8

doc.recompute()
